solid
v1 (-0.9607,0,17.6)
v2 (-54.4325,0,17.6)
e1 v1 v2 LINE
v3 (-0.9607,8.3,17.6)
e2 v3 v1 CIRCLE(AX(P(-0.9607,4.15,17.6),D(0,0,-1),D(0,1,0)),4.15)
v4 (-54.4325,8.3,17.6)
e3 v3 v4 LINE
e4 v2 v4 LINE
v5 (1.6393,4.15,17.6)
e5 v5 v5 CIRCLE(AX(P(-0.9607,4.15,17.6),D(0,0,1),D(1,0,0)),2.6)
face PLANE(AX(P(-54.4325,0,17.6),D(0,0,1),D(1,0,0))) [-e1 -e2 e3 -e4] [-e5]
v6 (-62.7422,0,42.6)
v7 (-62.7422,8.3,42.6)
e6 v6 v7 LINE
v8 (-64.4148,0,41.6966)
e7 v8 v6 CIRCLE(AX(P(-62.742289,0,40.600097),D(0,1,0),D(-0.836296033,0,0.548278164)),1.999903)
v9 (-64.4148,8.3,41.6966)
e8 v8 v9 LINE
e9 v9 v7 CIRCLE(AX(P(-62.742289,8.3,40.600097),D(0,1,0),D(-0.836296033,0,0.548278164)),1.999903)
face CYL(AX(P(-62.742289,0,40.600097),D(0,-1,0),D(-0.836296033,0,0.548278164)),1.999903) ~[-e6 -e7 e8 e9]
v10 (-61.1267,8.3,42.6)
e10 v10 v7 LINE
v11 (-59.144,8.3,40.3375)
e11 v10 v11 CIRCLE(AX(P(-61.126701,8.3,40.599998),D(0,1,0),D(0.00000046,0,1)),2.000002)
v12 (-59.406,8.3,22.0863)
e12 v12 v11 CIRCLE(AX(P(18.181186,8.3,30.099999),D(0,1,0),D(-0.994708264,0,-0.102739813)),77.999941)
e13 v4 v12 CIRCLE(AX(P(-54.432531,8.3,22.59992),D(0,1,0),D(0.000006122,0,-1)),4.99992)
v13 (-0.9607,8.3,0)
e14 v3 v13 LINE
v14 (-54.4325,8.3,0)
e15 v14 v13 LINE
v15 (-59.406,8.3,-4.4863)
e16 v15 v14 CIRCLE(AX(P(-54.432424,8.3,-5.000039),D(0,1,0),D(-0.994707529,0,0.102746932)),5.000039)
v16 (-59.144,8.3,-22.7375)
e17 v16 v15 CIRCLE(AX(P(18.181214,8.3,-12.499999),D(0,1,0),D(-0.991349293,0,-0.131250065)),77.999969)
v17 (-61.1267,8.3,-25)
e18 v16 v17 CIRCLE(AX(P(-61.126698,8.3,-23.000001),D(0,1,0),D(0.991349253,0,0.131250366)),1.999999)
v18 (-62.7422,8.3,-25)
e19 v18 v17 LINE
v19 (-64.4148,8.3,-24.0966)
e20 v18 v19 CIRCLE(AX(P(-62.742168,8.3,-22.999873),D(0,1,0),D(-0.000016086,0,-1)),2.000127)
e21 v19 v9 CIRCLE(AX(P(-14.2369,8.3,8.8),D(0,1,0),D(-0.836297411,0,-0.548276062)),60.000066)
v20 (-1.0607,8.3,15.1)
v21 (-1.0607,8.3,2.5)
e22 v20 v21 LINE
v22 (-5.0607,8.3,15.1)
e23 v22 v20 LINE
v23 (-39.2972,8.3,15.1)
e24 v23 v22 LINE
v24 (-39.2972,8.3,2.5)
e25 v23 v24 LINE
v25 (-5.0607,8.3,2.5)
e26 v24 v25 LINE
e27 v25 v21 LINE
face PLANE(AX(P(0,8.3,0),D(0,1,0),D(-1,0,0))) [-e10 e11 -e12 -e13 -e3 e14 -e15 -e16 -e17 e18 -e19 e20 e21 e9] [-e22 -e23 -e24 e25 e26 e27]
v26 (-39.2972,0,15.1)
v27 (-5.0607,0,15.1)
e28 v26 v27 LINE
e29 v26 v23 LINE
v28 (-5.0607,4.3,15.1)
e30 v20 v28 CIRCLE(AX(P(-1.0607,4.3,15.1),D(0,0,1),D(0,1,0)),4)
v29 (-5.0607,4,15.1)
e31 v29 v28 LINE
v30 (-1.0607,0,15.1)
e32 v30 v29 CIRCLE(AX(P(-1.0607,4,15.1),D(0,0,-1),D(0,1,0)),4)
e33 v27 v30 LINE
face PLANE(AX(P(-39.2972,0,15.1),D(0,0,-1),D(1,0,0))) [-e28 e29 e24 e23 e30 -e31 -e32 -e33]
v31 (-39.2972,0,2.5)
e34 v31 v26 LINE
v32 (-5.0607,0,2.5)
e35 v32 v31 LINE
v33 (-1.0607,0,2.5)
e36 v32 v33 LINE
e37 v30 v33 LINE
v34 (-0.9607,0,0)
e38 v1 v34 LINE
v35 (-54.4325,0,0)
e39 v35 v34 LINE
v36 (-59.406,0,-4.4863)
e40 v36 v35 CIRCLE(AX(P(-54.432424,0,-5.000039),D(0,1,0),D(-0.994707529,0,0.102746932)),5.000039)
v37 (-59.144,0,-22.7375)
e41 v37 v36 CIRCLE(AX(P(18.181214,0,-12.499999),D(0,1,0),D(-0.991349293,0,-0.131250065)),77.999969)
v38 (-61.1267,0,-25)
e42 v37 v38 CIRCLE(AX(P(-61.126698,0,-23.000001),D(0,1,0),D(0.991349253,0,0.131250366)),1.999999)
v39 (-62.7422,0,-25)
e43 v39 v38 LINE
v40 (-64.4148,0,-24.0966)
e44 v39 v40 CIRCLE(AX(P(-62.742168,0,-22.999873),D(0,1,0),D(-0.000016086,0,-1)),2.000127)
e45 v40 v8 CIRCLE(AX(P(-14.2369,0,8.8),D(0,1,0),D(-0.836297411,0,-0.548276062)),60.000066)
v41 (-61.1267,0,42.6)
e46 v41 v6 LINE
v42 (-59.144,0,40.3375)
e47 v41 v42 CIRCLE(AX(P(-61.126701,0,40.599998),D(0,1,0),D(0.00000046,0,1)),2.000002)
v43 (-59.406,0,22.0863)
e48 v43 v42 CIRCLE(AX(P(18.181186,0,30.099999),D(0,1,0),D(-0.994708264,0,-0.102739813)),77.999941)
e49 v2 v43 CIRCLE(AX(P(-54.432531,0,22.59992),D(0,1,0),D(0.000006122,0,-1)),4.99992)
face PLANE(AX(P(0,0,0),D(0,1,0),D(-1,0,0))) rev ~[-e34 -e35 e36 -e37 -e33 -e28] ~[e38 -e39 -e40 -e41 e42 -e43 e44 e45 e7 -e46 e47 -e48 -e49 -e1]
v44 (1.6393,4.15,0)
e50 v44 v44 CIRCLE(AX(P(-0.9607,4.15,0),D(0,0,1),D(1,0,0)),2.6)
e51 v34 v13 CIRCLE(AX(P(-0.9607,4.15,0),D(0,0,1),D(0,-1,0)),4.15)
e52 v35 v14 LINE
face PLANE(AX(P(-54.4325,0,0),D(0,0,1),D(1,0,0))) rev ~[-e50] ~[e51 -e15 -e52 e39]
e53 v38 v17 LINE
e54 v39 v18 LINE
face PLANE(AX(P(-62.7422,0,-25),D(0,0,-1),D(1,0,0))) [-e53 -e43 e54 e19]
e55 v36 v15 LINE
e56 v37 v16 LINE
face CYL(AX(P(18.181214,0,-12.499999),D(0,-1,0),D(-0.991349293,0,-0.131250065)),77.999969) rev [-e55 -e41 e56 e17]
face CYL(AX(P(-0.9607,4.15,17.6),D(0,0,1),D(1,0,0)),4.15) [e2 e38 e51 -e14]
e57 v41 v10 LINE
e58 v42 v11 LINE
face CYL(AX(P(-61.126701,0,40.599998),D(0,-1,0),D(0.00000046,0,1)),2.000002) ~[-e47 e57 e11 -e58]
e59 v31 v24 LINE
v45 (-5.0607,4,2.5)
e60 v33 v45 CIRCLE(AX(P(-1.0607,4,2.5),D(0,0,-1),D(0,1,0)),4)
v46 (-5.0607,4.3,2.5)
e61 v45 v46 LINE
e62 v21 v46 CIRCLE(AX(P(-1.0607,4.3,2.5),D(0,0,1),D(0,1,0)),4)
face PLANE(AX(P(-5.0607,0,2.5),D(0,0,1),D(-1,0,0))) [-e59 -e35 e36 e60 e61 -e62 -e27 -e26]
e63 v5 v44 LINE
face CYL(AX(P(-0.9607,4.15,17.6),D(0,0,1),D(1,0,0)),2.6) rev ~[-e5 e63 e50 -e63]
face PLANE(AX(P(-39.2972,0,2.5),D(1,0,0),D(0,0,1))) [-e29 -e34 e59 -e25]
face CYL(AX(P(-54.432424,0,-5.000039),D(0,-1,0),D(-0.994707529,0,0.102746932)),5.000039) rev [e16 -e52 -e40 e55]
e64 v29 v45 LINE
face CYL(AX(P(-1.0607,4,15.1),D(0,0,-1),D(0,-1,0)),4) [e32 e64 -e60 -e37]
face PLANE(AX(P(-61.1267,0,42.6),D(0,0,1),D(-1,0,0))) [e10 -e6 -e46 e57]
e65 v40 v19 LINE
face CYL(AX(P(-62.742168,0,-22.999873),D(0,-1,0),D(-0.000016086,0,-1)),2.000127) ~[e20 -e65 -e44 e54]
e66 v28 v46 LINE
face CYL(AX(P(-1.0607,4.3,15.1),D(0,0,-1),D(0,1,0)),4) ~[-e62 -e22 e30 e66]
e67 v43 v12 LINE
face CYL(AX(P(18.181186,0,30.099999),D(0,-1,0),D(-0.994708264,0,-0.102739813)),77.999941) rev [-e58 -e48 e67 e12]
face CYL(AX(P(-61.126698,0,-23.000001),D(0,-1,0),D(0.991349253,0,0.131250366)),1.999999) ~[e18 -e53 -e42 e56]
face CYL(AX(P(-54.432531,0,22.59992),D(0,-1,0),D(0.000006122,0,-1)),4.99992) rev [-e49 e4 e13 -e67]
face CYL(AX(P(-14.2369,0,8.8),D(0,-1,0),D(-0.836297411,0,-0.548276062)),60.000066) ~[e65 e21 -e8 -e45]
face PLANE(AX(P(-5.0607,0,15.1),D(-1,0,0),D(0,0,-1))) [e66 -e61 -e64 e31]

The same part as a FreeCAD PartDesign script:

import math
import FreeCAD as App
import Part
import Sketcher

V = App.Vector
Q = App.Units.Quantity


def edges_at(feature, points):
    """Names of the edges that pass closest to the given points."""
    edges = feature.Shape.Edges
    near = lambda p: min(range(len(edges)), key=lambda i: edges[i].distToShape(Part.Vertex(*p))[0])
    return sorted({f"Edge{near(p) + 1}" for p in points})


def add_polygon(sketch, points):
    """Adds a closed chain of lines whose ends are joined by coincident constraints."""
    first, n = sketch.GeometryCount, len(points)
    for a, b in zip(points, points[1:] + points[:1]):
        sketch.addGeometry(Part.LineSegment(App.Vector(*a, 0), App.Vector(*b, 0)), False)
    for i in range(n):
        sketch.addConstraint(Sketcher.Constraint("Coincident", first + i, 2, first + (i + 1) % n, 1))

doc = App.newDocument("Part")
body = doc.addObject("PartDesign::Body", "Body")
body.AllowCompound = True

# Sketch on XZ plane
sketch1 = body.newObject("Sketcher::SketchObject", "Sketch")
sketch1.AttachmentSupport = (doc.getObject("XZ_Plane"), [""])
sketch1.MapMode = "FlatFace"
sketch1.addGeometry(Part.ArcOfCircle(Part.Circle(V(-62.7, -23, 0), V(0, 0, 1), 2), math.radians(-147), math.radians(-90)), False)
sketch1.addGeometry(Part.ArcOfCircle(Part.Circle(V(-14.2, 8.8, 0), V(0, 0, 1), 60), math.radians(147), math.radians(213)), False)
sketch1.addGeometry(Part.ArcOfCircle(Part.Circle(V(-62.7, 40.6, 0), V(0, 0, 1), 2), math.radians(90), math.radians(147)), False)
sketch1.addGeometry(Part.LineSegment(V(-62.7, 42.6, 0), V(-61.1, 42.6, 0)), False)
sketch1.addGeometry(Part.ArcOfCircle(Part.Circle(V(-61.1, 40.6, 0), V(0, 0, 1), 2), math.radians(-8), math.radians(90)), False)
sketch1.addGeometry(Part.ArcOfCircle(Part.Circle(V(18.2, 30.1, 0), V(0, 0, 1), 78), math.radians(172.46), math.radians(185.9)), False)
sketch1.addGeometry(Part.ArcOfCircle(Part.Circle(V(-54.4, 22.6, 0), V(0, 0, 1), 5), math.radians(-174), math.radians(-90)), False)
sketch1.addGeometry(Part.LineSegment(V(-54.4, 17.6, 0), V(3.2, 17.6, 0)), False)
sketch1.addGeometry(Part.LineSegment(V(3.2, 17.6, 0), V(3.2, 0, 0)), False)
sketch1.addGeometry(Part.LineSegment(V(3.2, 0, 0), V(-54.4, 0, 0)), False)
sketch1.addGeometry(Part.ArcOfCircle(Part.Circle(V(-54.4, -5, 0), V(0, 0, 1), 5), math.radians(90), math.radians(174)), False)
sketch1.addGeometry(Part.ArcOfCircle(Part.Circle(V(18.2, -12.5, 0), V(0, 0, 1), 78), math.radians(174.1), math.radians(187.54)), False)
sketch1.addGeometry(Part.ArcOfCircle(Part.Circle(V(-61.1, -23, 0), V(0, 0, 1), 2), math.radians(-90), math.radians(8)), False)
sketch1.addGeometry(Part.LineSegment(V(-61.1, -25, 0), V(-62.7, -25, 0)), False)
sketch1.addConstraint(Sketcher.Constraint("Tangent", 0, 1, 1, 2))
sketch1.addConstraint(Sketcher.Constraint("Tangent", 1, 1, 2, 2))
sketch1.addConstraint(Sketcher.Constraint("Tangent", 2, 1, 3, 1))
sketch1.addConstraint(Sketcher.Constraint("Tangent", 3, 2, 4, 2))
sketch1.addConstraint(Sketcher.Constraint("Tangent", 4, 1, 5, 1))
sketch1.addConstraint(Sketcher.Constraint("Tangent", 5, 2, 6, 1))
sketch1.addConstraint(Sketcher.Constraint("Tangent", 6, 2, 7, 1))
sketch1.addConstraint(Sketcher.Constraint("Coincident", 7, 2, 8, 1))
sketch1.addConstraint(Sketcher.Constraint("Coincident", 8, 2, 9, 1))
sketch1.addConstraint(Sketcher.Constraint("Tangent", 9, 2, 10, 1))
sketch1.addConstraint(Sketcher.Constraint("Tangent", 10, 2, 11, 1))
sketch1.addConstraint(Sketcher.Constraint("Tangent", 11, 2, 12, 2))
sketch1.addConstraint(Sketcher.Constraint("Tangent", 12, 1, 13, 1))
sketch1.addConstraint(Sketcher.Constraint("Tangent", 13, 2, 0, 2))
sketch1.addConstraint(Sketcher.Constraint("Horizontal", 3))
sketch1.addConstraint(Sketcher.Constraint("Horizontal", 7))
sketch1.addConstraint(Sketcher.Constraint("Vertical", 8))
sketch1.addConstraint(Sketcher.Constraint("Horizontal", 9))
sketch1.addConstraint(Sketcher.Constraint("Horizontal", 13))
sketch1.addConstraint(Sketcher.Constraint("Equal", 0, 2))
sketch1.addConstraint(Sketcher.Constraint("Equal", 2, 4))
sketch1.addConstraint(Sketcher.Constraint("Equal", 6, 10))
sketch1.addConstraint(Sketcher.Constraint("Equal", 5, 11))
sketch1.addConstraint(Sketcher.Constraint("Equal", 4, 12))
sketch1.addConstraint(Sketcher.Constraint("PointOnObject", 8, 2, -1))
sketch1.addConstraint(Sketcher.Constraint("Vertical", 0, 3, 2, 3))
sketch1.addConstraint(Sketcher.Constraint("Vertical", 6, 3, 10, 3))
sketch1.addConstraint(Sketcher.Constraint("Vertical", 5, 3, 11, 3))
sketch1.addConstraint(Sketcher.Constraint("Vertical", 4, 3, 12, 3))
sketch1.addConstraint(Sketcher.Constraint("Radius", 0, Q("2 mm")))
sketch1.addConstraint(Sketcher.Constraint("Radius", 5, Q("78 mm")))
sketch1.addConstraint(Sketcher.Constraint("Radius", 6, Q("5 mm")))
sketch1.addConstraint(Sketcher.Constraint("DistanceY", 8, 2, 8, 1, Q("17.6 mm")))
sketch1.addConstraint(Sketcher.Constraint("Radius", 1, Q("60 mm")))
sketch1.addConstraint(Sketcher.Constraint("DistanceY", 0, 3, -1, 1, Q("23 mm")))
sketch1.addConstraint(Sketcher.Constraint("DistanceY", -1, 1, 5, 3, Q("30.1 mm")))
sketch1.addConstraint(Sketcher.Constraint("DistanceX", 3, 1, 3, 2, Q("1.6155 mm")))
sketch1.addConstraint(Sketcher.Constraint("DistanceX", 7, 1, 7, 2, Q("57.6218 mm")))
sketch1.addConstraint(Sketcher.Constraint("DistanceX", 1, 3, -1, 1, Q("14.237 mm")))
pad1 = body.newObject("PartDesign::Pad", "Pad")
pad1.Profile = sketch1
pad1.Length = 8.3
pad1.Reversed = True

# Sketch on XY plane
sketch2 = body.newObject("Sketcher::SketchObject", "Sketch001")
sketch2.AttachmentSupport = (doc.getObject("XY_Plane"), [""])
sketch2.MapMode = "FlatFace"
sketch2.AttachmentOffset = App.Placement(V(0, 0, 17.6), App.Rotation())
sketch2.addGeometry(Part.LineSegment(V(-1, 0, 0), V(3.2, 0, 0)), False)
sketch2.addGeometry(Part.LineSegment(V(3.2, 0, 0), V(3.2, 8.3, 0)), False)
sketch2.addGeometry(Part.LineSegment(V(3.2, 8.3, 0), V(-1, 8.3, 0)), False)
sketch2.addGeometry(Part.ArcOfCircle(Part.Circle(V(-1, 4.2, 0), V(0, 0, 1), 4.2), math.radians(90), math.radians(270)), False)
sketch2.addGeometry(Part.Circle(V(-1, 4.2, 0), V(0, 0, 1), 2.6), False)
sketch2.addConstraint(Sketcher.Constraint("Coincident", 0, 2, 1, 1))
sketch2.addConstraint(Sketcher.Constraint("Coincident", 1, 2, 2, 1))
sketch2.addConstraint(Sketcher.Constraint("Tangent", 2, 2, 3, 1))
sketch2.addConstraint(Sketcher.Constraint("Tangent", 3, 2, 0, 1))
sketch2.addConstraint(Sketcher.Constraint("Horizontal", 0))
sketch2.addConstraint(Sketcher.Constraint("Vertical", 1))
sketch2.addConstraint(Sketcher.Constraint("Horizontal", 2))
sketch2.addConstraint(Sketcher.Constraint("Coincident", 4, 3, 3, 3))
sketch2.addConstraint(Sketcher.Constraint("PointOnObject", 0, 2, -1))
sketch2.addConstraint(Sketcher.Constraint("Diameter", 4, Q("5.2 mm")))
sketch2.addConstraint(Sketcher.Constraint("Radius", 3, Q("4.15 mm")))
sketch2.addConstraint(Sketcher.Constraint("DistanceX", 0, 1, 0, 2, Q("4.15 mm")))
sketch2.addConstraint(Sketcher.Constraint("DistanceX", 3, 3, -1, 1, Q("0.9607 mm")))
pocket1 = body.newObject("PartDesign::Pocket", "Pocket")
pocket1.Profile = sketch2
pocket1.Type = "ThroughAll"

# Sketch on XY plane
sketch3 = body.newObject("Sketcher::SketchObject", "Sketch002")
sketch3.AttachmentSupport = (doc.getObject("XY_Plane"), [""])
sketch3.MapMode = "FlatFace"
sketch3.AttachmentOffset = App.Placement(V(0, 0, 17.6), App.Rotation())
sketch3.addGeometry(Part.Circle(V(-1, 4.2, 0), V(0, 0, 1), 4.2), False)
sketch3.addConstraint(Sketcher.Constraint("Diameter", 0, Q("8.3 mm")))
sketch3.addConstraint(Sketcher.Constraint("DistanceY", -1, 1, 0, 3, Q("4.15 mm")))
sketch3.addConstraint(Sketcher.Constraint("DistanceX", 0, 3, -1, 1, Q("0.9607 mm")))
pad2 = body.newObject("PartDesign::Pad", "Pad001")
pad2.Profile = sketch3
pad2.Length = 17.6
pad2.Reversed = True

# Sketch on XY plane
sketch4 = body.newObject("Sketcher::SketchObject", "Sketch003")
sketch4.AttachmentSupport = (doc.getObject("XY_Plane"), [""])
sketch4.MapMode = "FlatFace"
sketch4.AttachmentOffset = App.Placement(V(0, 0, 17.6), App.Rotation())
sketch4.addGeometry(Part.Circle(V(-1, 4.2, 0), V(0, 0, 1), 2.6), False)
sketch4.addConstraint(Sketcher.Constraint("Diameter", 0, Q("5.2 mm")))
sketch4.addConstraint(Sketcher.Constraint("DistanceY", -1, 1, 0, 3, Q("4.15 mm")))
sketch4.addConstraint(Sketcher.Constraint("DistanceX", 0, 3, -1, 1, Q("0.9607 mm")))
pocket2 = body.newObject("PartDesign::Pocket", "Pocket001")
pocket2.Profile = sketch4
pocket2.Type = "ThroughAll"

# Sketch on XZ plane
sketch5 = body.newObject("Sketcher::SketchObject", "Sketch004")
sketch5.AttachmentSupport = (doc.getObject("XZ_Plane"), [""])
sketch5.MapMode = "FlatFace"
add_polygon(sketch5, [(-5, 15), (-39, 15), (-39, 2), (-5, 2)])  # lines 0-3
sketch5.addConstraint(Sketcher.Constraint("Horizontal", 0))
sketch5.addConstraint(Sketcher.Constraint("Vertical", 1))
sketch5.addConstraint(Sketcher.Constraint("Horizontal", 2))
sketch5.addConstraint(Sketcher.Constraint("Vertical", 3))
sketch5.addConstraint(Sketcher.Constraint("DistanceY", -1, 1, 1, 2, Q("2.5 mm")))
sketch5.addConstraint(Sketcher.Constraint("DistanceY", 1, 2, 1, 1, Q("12.6 mm")))
sketch5.addConstraint(Sketcher.Constraint("DistanceX", 0, 2, 0, 1, Q("34.2365 mm")))
sketch5.addConstraint(Sketcher.Constraint("DistanceX", 0, 2, -1, 1, Q("39.2972 mm")))
pocket3 = body.newObject("PartDesign::Pocket", "Pocket002")
pocket3.Profile = sketch5
pocket3.Length = 8.3
doc.recompute()

fillet = body.newObject("PartDesign::Fillet", "Fillet")
fillet.Base = (pocket3, edges_at(pocket3, [(-5.061, 0, 8.8), (-5.061, 8.3, 8.8)]))
fillet.Radius = 4

doc.recompute()
